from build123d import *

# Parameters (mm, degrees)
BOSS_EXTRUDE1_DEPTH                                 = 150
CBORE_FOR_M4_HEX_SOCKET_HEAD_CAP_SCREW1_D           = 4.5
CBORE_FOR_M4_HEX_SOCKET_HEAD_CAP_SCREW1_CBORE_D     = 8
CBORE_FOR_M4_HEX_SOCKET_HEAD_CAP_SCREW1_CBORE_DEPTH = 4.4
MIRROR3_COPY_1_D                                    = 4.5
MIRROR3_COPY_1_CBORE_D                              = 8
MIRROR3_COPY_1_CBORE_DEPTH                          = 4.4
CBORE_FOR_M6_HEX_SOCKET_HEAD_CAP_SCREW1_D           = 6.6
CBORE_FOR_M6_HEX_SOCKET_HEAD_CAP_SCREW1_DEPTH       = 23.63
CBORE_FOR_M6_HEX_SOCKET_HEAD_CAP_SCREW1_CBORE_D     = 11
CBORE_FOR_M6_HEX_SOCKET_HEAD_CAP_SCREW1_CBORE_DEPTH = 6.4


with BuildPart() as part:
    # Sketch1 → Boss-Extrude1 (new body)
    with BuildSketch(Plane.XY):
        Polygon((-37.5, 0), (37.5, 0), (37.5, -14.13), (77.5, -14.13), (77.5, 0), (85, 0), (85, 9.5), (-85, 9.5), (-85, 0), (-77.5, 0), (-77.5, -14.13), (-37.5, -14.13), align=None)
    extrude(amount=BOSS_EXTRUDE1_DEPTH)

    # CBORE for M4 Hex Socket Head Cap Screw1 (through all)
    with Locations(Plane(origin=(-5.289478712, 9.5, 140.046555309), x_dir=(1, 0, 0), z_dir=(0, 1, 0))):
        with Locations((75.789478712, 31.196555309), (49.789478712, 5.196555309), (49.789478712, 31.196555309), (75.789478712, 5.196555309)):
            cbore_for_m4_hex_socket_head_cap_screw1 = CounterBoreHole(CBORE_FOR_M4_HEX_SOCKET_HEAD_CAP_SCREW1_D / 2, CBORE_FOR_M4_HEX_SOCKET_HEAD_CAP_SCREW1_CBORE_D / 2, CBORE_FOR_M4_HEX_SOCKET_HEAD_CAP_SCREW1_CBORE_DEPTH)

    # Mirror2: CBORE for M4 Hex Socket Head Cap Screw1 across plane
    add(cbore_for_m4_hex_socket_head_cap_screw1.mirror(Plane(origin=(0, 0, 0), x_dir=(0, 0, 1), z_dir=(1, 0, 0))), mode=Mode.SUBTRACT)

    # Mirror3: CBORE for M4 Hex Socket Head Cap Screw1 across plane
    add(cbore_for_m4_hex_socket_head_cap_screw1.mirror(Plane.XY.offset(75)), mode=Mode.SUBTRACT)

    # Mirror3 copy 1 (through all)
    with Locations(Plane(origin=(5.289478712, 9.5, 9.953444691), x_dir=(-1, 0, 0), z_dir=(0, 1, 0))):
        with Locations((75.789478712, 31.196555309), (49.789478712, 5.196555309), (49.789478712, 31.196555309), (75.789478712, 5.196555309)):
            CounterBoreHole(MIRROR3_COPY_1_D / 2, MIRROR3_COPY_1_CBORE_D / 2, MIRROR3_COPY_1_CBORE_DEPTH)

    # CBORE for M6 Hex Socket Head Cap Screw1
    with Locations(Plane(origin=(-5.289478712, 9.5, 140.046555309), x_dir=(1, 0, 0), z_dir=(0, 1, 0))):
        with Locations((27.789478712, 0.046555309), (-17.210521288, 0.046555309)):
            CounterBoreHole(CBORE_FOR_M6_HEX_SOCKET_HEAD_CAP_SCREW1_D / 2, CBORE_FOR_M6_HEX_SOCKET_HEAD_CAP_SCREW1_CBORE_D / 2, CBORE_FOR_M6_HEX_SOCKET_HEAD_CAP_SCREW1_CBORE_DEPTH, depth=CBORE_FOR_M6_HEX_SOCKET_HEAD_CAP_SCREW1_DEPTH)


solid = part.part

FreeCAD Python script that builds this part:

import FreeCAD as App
import Part
import Sketcher


def add_polygon(sketch, points):
    """Adds a closed chain of lines whose ends are joined by coincident constraints."""
    first, n = sketch.GeometryCount, len(points)
    for a, b in zip(points, points[1:] + points[:1]):
        sketch.addGeometry(Part.LineSegment(App.Vector(*a, 0), App.Vector(*b, 0)), False)
    for i in range(n):
        sketch.addConstraint(Sketcher.Constraint("Coincident", first + i, 2, first + (i + 1) % n, 1))

doc = App.newDocument("Part")
body = doc.addObject("PartDesign::Body", "Body")

# Sketch on XY plane
sketch1 = body.newObject("Sketcher::SketchObject", "Sketch")
sketch1.AttachmentSupport = (doc.getObject("XY_Plane"), [""])
sketch1.MapMode = "FlatFace"
add_polygon(sketch1, [(-37.5, 0), (37.5, 0), (37.5, -14.13), (77.5, -14.13), (77.5, 0), (85, 0), (85, 9.5), (-85, 9.5), (-85, 0), (-77.5, 0), (-77.5, -14.13), (-37.5, -14.13)])  # lines 0-11
sketch1.addConstraint([
    Sketcher.Constraint("Horizontal", 0),
    Sketcher.Constraint("Vertical", 1),
    Sketcher.Constraint("Horizontal", 2),
    Sketcher.Constraint("Vertical", 3),
    Sketcher.Constraint("Horizontal", 4),
    Sketcher.Constraint("Vertical", 5),
    Sketcher.Constraint("Horizontal", 6),
    Sketcher.Constraint("Vertical", 7),
    Sketcher.Constraint("Horizontal", 8),
    Sketcher.Constraint("Vertical", 9),
    Sketcher.Constraint("Horizontal", 10),
    Sketcher.Constraint("Vertical", 11),
    Sketcher.Constraint("Symmetric", 4, 2, 7, 2, -1, 1),
    Sketcher.Constraint("Symmetric", 0, 2, 11, 2, -1, 1),
    Sketcher.Constraint("Symmetric", 3, 2, 8, 2, -2),
    Sketcher.Constraint("Horizontal", 2, 2, 9, 2),
    Sketcher.Constraint("DistanceX", 0, 1, 0, 2, 75.0),
    Sketcher.Constraint("DistanceX", 2, 1, 2, 2, 40.0),
    Sketcher.Constraint("DistanceX", 6, 2, 6, 1, 170.0),
    Sketcher.Constraint("DistanceY", 5, 1, 5, 2, 9.5),
    Sketcher.Constraint("DistanceY", 1, 2, 1, 1, 14.13),
])
pad1 = body.newObject("PartDesign::Pad", "Pad")
pad1.Profile = sketch1
pad1.Length = 150

# Sketch on XZ plane
sketch2 = body.newObject("Sketcher::SketchObject", "Sketch001")
sketch2.AttachmentSupport = (doc.getObject("XZ_Plane"), [""])
sketch2.MapMode = "FlatFace"
sketch2.AttachmentOffset = App.Placement(App.Vector(0, 0, -9.5), App.Rotation())
sketch2.addGeometry([
    Part.Circle(App.Vector(70.5, 108.85, 0), App.Vector(0, 0, 1), 2.25),
    Part.Circle(App.Vector(44.5, 134.85, 0), App.Vector(0, 0, 1), 2.25),
    Part.Circle(App.Vector(44.5, 108.85, 0), App.Vector(0, 0, 1), 2.25),
    Part.Circle(App.Vector(70.5, 134.85, 0), App.Vector(0, 0, 1), 2.25),
], False)
sketch2.addConstraint([
    Sketcher.Constraint("Equal", 0, 1),
    Sketcher.Constraint("Equal", 1, 2),
    Sketcher.Constraint("Equal", 2, 3),
    Sketcher.Constraint("Horizontal", 0, 3, 2, 3),
    Sketcher.Constraint("Horizontal", 1, 3, 3, 3),
    Sketcher.Constraint("Vertical", 1, 3, 2, 3),
    Sketcher.Constraint("Vertical", 0, 3, 3, 3),
    Sketcher.Constraint("Diameter", 0, 4.5),
    Sketcher.Constraint("DistanceX", 1, 3, 0, 3, 26.0),
    Sketcher.Constraint("DistanceY", 0, 3, 1, 3, 26.0),
    Sketcher.Constraint("DistanceX", -1, 1, 0, 3, 70.5),
    Sketcher.Constraint("DistanceY", -1, 1, 0, 3, 108.85),
])
doc.recompute()
hole = body.newObject("PartDesign::Hole", "Hole")
hole.Profile = sketch2
hole.ThreadType = "None"
hole.Diameter = 4.5
hole.DepthType = "ThroughAll"
hole.HoleCutType = "Counterbore"
hole.HoleCutDiameter = 8
hole.HoleCutDepth = 4.4
hole.Reversed = True
doc.recompute()

mirrored = body.newObject("PartDesign::Mirrored", "Mirrored")
mirrored.Originals = [hole]
mirrored.MirrorPlane = (doc.getObject("YZ_Plane"), [""])
body.Tip = mirrored
doc.recompute()

datumplane = body.newObject("PartDesign::Plane", "DatumPlane")
datumplane.AttachmentSupport = (doc.getObject("XY_Plane"), [""])
datumplane.MapMode = "FlatFace"
datumplane.AttachmentOffset = App.Placement(App.Vector(0, 0, 75), App.Rotation())
mirrored2 = body.newObject("PartDesign::Mirrored", "Mirrored001")
mirrored2.Originals = [hole]
mirrored2.MirrorPlane = (datumplane, [""])
body.Tip = mirrored2

# Sketch on XZ plane
sketch3 = body.newObject("Sketcher::SketchObject", "Sketch002")
sketch3.AttachmentSupport = (doc.getObject("XZ_Plane"), [""])
sketch3.MapMode = "FlatFace"
sketch3.AttachmentOffset = App.Placement(App.Vector(0, 0, -9.5), App.Rotation())
sketch3.addGeometry([
    Part.Circle(App.Vector(-70.5, 41.15, 0), App.Vector(0, 0, 1), 2.25),
    Part.Circle(App.Vector(-44.5, 15.15, 0), App.Vector(0, 0, 1), 2.25),
    Part.Circle(App.Vector(-44.5, 41.15, 0), App.Vector(0, 0, 1), 2.25),
    Part.Circle(App.Vector(-70.5, 15.15, 0), App.Vector(0, 0, 1), 2.25),
], False)
sketch3.addConstraint([
    Sketcher.Constraint("Equal", 0, 1),
    Sketcher.Constraint("Equal", 1, 2),
    Sketcher.Constraint("Equal", 2, 3),
    Sketcher.Constraint("Horizontal", 0, 3, 2, 3),
    Sketcher.Constraint("Horizontal", 1, 3, 3, 3),
    Sketcher.Constraint("Vertical", 1, 3, 2, 3),
    Sketcher.Constraint("Vertical", 0, 3, 3, 3),
    Sketcher.Constraint("Diameter", 0, 4.5),
    Sketcher.Constraint("DistanceX", 0, 3, 1, 3, 26.0),
    Sketcher.Constraint("DistanceY", 1, 3, 0, 3, 26.0),
    Sketcher.Constraint("DistanceX", 0, 3, -1, 1, 70.5),
    Sketcher.Constraint("DistanceY", -1, 1, 0, 3, 41.15),
])
doc.recompute()
hole2 = body.newObject("PartDesign::Hole", "Hole001")
hole2.Profile = sketch3
hole2.ThreadType = "None"
hole2.Diameter = 4.5
hole2.DepthType = "ThroughAll"
hole2.HoleCutType = "Counterbore"
hole2.HoleCutDiameter = 8
hole2.HoleCutDepth = 4.4
hole2.Reversed = True

# Sketch on XZ plane
sketch4 = body.newObject("Sketcher::SketchObject", "Sketch003")
sketch4.AttachmentSupport = (doc.getObject("XZ_Plane"), [""])
sketch4.MapMode = "FlatFace"
sketch4.AttachmentOffset = App.Placement(App.Vector(0, 0, -9.5), App.Rotation())
sketch4.addGeometry([
    Part.Circle(App.Vector(22.5, 140, 0), App.Vector(0, 0, 1), 3.3),
    Part.Circle(App.Vector(-22.5, 140, 0), App.Vector(0, 0, 1), 3.3),
], False)
sketch4.addConstraint([
    Sketcher.Constraint("Equal", 0, 1),
    Sketcher.Constraint("Symmetric", 0, 3, 1, 3, -2),
    Sketcher.Constraint("Diameter", 0, 6.6),
    Sketcher.Constraint("DistanceY", -1, 1, 0, 3, 140.0),
    Sketcher.Constraint("DistanceX", 1, 3, 0, 3, 45.0),
])
doc.recompute()
hole3 = body.newObject("PartDesign::Hole", "Hole002")
hole3.Profile = sketch4
hole3.ThreadType = "None"
hole3.Diameter = 6.6
hole3.DepthType = "Dimension"
hole3.Depth = 23.63
hole3.DrillPoint = "Flat"
hole3.HoleCutType = "Counterbore"
hole3.HoleCutDiameter = 11
hole3.HoleCutDepth = 6.4
hole3.Reversed = True

doc.recompute()
